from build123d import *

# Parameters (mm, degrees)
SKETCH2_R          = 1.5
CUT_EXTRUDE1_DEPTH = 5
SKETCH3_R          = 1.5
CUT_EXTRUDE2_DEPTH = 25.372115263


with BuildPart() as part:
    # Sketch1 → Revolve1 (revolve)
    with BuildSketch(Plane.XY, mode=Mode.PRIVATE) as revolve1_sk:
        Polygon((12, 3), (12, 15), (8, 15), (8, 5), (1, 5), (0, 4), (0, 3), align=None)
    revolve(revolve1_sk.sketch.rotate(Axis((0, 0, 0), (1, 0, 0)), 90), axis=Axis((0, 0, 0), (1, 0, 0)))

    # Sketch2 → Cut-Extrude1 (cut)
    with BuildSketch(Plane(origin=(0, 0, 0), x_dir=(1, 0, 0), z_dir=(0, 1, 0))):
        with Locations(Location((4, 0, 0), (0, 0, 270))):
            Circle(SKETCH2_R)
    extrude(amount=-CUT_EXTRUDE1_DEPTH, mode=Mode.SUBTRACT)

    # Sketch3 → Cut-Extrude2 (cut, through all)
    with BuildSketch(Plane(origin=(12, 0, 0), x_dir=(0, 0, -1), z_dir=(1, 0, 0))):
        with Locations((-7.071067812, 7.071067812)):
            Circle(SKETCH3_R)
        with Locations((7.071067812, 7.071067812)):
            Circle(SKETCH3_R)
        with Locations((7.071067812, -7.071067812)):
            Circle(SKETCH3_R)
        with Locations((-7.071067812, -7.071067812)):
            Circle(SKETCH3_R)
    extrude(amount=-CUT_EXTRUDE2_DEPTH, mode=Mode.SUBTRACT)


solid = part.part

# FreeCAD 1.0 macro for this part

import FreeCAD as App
import Part
import Sketcher
Q = App.Units.Quantity

doc = App.newDocument("Part")
body = doc.addObject("PartDesign::Body", "Body")

# Sketch on XY plane
sketch1 = body.newObject("Sketcher::SketchObject", "Sketch")
sketch1.AttachmentSupport = (doc.getObject("XY_Plane"), [""])
sketch1.MapMode = "FlatFace"
sketch1.addGeometry([
    Part.LineSegment(App.Vector(12, 3, 0), App.Vector(12, 15, 0)),  # 0
    Part.LineSegment(App.Vector(12, 15, 0), App.Vector(8, 15, 0)),  # 1
    Part.LineSegment(App.Vector(8, 15, 0), App.Vector(8, 5, 0)),  # 2
    Part.LineSegment(App.Vector(8, 5, 0), App.Vector(1, 5, 0)),  # 3
    Part.LineSegment(App.Vector(1, 5, 0), App.Vector(0, 4, 0)),  # 4
    Part.LineSegment(App.Vector(0, 4, 0), App.Vector(0, 3, 0)),  # 5
    Part.LineSegment(App.Vector(0, 3, 0), App.Vector(12, 3, 0)),  # 6
], False)
sketch1.addConstraint([
    Sketcher.Constraint("Coincident", 0, 2, 1, 1),
    Sketcher.Constraint("Coincident", 1, 2, 2, 1),
    Sketcher.Constraint("Coincident", 2, 2, 3, 1),
    Sketcher.Constraint("Coincident", 3, 2, 4, 1),
    Sketcher.Constraint("Coincident", 4, 2, 5, 1),
    Sketcher.Constraint("Coincident", 5, 2, 6, 1),
    Sketcher.Constraint("Coincident", 6, 2, 0, 1),
    Sketcher.Constraint("Vertical", 0),
    Sketcher.Constraint("Horizontal", 1),
    Sketcher.Constraint("Vertical", 2),
    Sketcher.Constraint("Horizontal", 3),
    Sketcher.Constraint("Vertical", 5),
    Sketcher.Constraint("Horizontal", 6),
    Sketcher.Constraint("PointOnObject", 4, 2, -2),
    Sketcher.Constraint("Equal", 6, 0),
    Sketcher.Constraint("DistanceX", 1, 2, 1, 1, Q("4 mm")),
    Sketcher.Constraint("DistanceX", 3, 2, 3, 1, Q("7 mm")),
    Sketcher.Constraint("DistanceX", 6, 1, 6, 2, Q("12 mm")),
    Sketcher.Constraint("DistanceY", 2, 2, 2, 1, Q("10 mm")),
    Sketcher.Constraint("DistanceY", 5, 2, 5, 1, Q("1 mm")),
    Sketcher.Constraint("DistanceY", -1, 1, 0, 2, Q("15 mm")),
])
revolution = body.newObject("PartDesign::Revolution", "Revolution")
revolution.Profile = sketch1
revolution.ReferenceAxis = (sketch1, ["H_Axis"])
revolution.Angle = 360

# Sketch on XZ plane
sketch2 = body.newObject("Sketcher::SketchObject", "Sketch001")
sketch2.AttachmentSupport = (doc.getObject("XZ_Plane"), [""])
sketch2.MapMode = "FlatFace"
sketch2.addGeometry(Part.Circle(App.Vector(4, 0, 0), App.Vector(0, 0, 1), 1.5), False)
sketch2.addConstraint([
    Sketcher.Constraint("PointOnObject", 0, 3, -1),
    Sketcher.Constraint("Diameter", 0, Q("3 mm")),
    Sketcher.Constraint("DistanceX", -1, 1, 0, 3, Q("4 mm")),
])
pocket1 = body.newObject("PartDesign::Pocket", "Pocket")
pocket1.Profile = sketch2
pocket1.Length = 5
pocket1.Reversed = True

# Sketch on YZ plane
sketch3 = body.newObject("Sketcher::SketchObject", "Sketch002")
sketch3.AttachmentSupport = (doc.getObject("YZ_Plane"), [""])
sketch3.MapMode = "FlatFace"
sketch3.AttachmentOffset = App.Placement(App.Vector(0, 0, 12), App.Rotation())
sketch3.addGeometry([
    Part.Circle(App.Vector(7.1, 7.1, 0), App.Vector(0, 0, 1), 1.5),
    Part.Circle(App.Vector(7.1, -7.1, 0), App.Vector(0, 0, 1), 1.5),
    Part.Circle(App.Vector(-7.1, -7.1, 0), App.Vector(0, 0, 1), 1.5),
    Part.Circle(App.Vector(-7.1, 7.1, 0), App.Vector(0, 0, 1), 1.5),
], False)
sketch3.addConstraint([
    Sketcher.Constraint("Equal", 0, 1),
    Sketcher.Constraint("Equal", 1, 2),
    Sketcher.Constraint("Equal", 2, 3),
    Sketcher.Constraint("Symmetric", 0, 3, 2, 3, -1, 1),
    Sketcher.Constraint("Symmetric", 1, 3, 3, 3, -1, 1),
    Sketcher.Constraint("Symmetric", 1, 3, 2, 3, -2),
    Sketcher.Constraint("Diameter", 0, Q("3 mm")),
    Sketcher.Constraint("DistanceX", -1, 1, 0, 3, Q("7.071068 mm")),
    Sketcher.Constraint("DistanceY", -1, 1, 0, 3, Q("7.071068 mm")),
])
pocket2 = body.newObject("PartDesign::Pocket", "Pocket001")
pocket2.Profile = sketch3
pocket2.Type = "ThroughAll"

doc.recompute()
